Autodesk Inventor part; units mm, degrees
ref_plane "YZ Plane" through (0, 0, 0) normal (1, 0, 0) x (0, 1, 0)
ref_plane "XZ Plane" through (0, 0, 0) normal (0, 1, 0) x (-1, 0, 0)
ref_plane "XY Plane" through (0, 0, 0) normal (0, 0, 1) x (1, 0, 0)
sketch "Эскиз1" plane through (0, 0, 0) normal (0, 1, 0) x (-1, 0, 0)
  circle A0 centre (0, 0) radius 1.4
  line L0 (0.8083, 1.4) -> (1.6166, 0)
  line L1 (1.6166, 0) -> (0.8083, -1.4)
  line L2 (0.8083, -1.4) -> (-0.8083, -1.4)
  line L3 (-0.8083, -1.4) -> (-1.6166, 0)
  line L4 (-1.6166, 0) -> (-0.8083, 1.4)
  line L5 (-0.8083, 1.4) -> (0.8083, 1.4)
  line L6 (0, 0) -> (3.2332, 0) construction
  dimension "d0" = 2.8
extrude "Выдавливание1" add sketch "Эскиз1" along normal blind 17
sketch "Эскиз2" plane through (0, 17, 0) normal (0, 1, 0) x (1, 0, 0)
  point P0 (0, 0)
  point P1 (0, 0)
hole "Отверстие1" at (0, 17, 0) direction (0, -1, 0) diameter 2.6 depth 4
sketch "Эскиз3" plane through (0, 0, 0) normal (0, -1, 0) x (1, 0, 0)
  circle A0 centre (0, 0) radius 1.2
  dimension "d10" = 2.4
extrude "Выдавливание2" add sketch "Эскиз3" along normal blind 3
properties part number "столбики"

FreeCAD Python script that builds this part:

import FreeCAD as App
import Part
import Sketcher
Q = App.Units.Quantity

doc = App.newDocument("Part")
body = doc.addObject("PartDesign::Body", "Body")

# Sketch on XZ plane
sketch1 = body.newObject("Sketcher::SketchObject", "Sketch")
sketch1.AttachmentSupport = (doc.getObject("XZ_Plane"), [""])
sketch1.MapMode = "FlatFace"
sketch1.addGeometry([
    Part.LineSegment(App.Vector(-1.6, 0, 0), App.Vector(-0.8, 1.4, 0)),  # 0
    Part.LineSegment(App.Vector(-0.8, 1.4, 0), App.Vector(0.8, 1.4, 0)),  # 1
    Part.LineSegment(App.Vector(0.8, 1.4, 0), App.Vector(1.6, 0, 0)),  # 2
    Part.LineSegment(App.Vector(1.6, 0, 0), App.Vector(0.8, -1.4, 0)),  # 3
    Part.LineSegment(App.Vector(0.8, -1.4, 0), App.Vector(-0.8, -1.4, 0)),  # 4
    Part.LineSegment(App.Vector(-0.8, -1.4, 0), App.Vector(-1.6, 0, 0)),  # 5
], False)
sketch1.addConstraint([
    Sketcher.Constraint("Coincident", 0, 2, 1, 1),
    Sketcher.Constraint("Coincident", 1, 2, 2, 1),
    Sketcher.Constraint("Coincident", 2, 2, 3, 1),
    Sketcher.Constraint("Coincident", 3, 2, 4, 1),
    Sketcher.Constraint("Coincident", 4, 2, 5, 1),
    Sketcher.Constraint("Coincident", 5, 2, 0, 1),
    Sketcher.Constraint("Horizontal", 1),
    Sketcher.Constraint("Horizontal", 4),
    Sketcher.Constraint("Symmetric", 0, 2, 3, 2, -1, 1),
    Sketcher.Constraint("Symmetric", 2, 2, 5, 2, -1, 1),
    Sketcher.Constraint("PointOnObject", 2, 2, -1),
    Sketcher.Constraint("Parallel", 2, 5),
    Sketcher.Constraint("Vertical", 1, 2, 3, 2),
    Sketcher.Constraint("DistanceY", 3, 2, 1, 2, Q("2.8 mm")),
    Sketcher.Constraint("Angle", 0, Q("59.9997 deg")),
    Sketcher.Constraint("DistanceX", 1, 1, 1, 2, Q("1.6166 mm")),
])
pad1 = body.newObject("PartDesign::Pad", "Pad")
pad1.Profile = sketch1
pad1.Length = 17
pad1.Reversed = True

# Sketch on XZ plane
sketch2 = body.newObject("Sketcher::SketchObject", "Sketch001")
sketch2.AttachmentSupport = (doc.getObject("XZ_Plane"), [""])
sketch2.MapMode = "FlatFace"
sketch2.AttachmentOffset = App.Placement(App.Vector(0, 0, -17), App.Rotation())
sketch2.addGeometry(Part.Circle(App.Vector(0, 0, 0), App.Vector(0, 0, 1), 1.3), False)
sketch2.addConstraint([
    Sketcher.Constraint("Coincident", 0, 3, -1, 1),
    Sketcher.Constraint("Diameter", 0, Q("2.6 mm")),
])
doc.recompute()
hole = body.newObject("PartDesign::Hole", "Hole")
hole.Profile = sketch2
hole.ThreadType = "None"
hole.Diameter = 2.6
hole.DepthType = "Dimension"
hole.Depth = 4
hole.DrillPoint = "Flat"
hole.Reversed = True

# Sketch on XZ plane
sketch3 = body.newObject("Sketcher::SketchObject", "Sketch002")
sketch3.AttachmentSupport = (doc.getObject("XZ_Plane"), [""])
sketch3.MapMode = "FlatFace"
sketch3.addGeometry(Part.Circle(App.Vector(0, 0, 0), App.Vector(0, 0, 1), 1.2), False)
sketch3.addConstraint([
    Sketcher.Constraint("Coincident", 0, 3, -1, 1),
    Sketcher.Constraint("Diameter", 0, Q("2.4 mm")),
])
pad2 = body.newObject("PartDesign::Pad", "Pad001")
pad2.Profile = sketch3
pad2.Length = 3

doc.recompute()
